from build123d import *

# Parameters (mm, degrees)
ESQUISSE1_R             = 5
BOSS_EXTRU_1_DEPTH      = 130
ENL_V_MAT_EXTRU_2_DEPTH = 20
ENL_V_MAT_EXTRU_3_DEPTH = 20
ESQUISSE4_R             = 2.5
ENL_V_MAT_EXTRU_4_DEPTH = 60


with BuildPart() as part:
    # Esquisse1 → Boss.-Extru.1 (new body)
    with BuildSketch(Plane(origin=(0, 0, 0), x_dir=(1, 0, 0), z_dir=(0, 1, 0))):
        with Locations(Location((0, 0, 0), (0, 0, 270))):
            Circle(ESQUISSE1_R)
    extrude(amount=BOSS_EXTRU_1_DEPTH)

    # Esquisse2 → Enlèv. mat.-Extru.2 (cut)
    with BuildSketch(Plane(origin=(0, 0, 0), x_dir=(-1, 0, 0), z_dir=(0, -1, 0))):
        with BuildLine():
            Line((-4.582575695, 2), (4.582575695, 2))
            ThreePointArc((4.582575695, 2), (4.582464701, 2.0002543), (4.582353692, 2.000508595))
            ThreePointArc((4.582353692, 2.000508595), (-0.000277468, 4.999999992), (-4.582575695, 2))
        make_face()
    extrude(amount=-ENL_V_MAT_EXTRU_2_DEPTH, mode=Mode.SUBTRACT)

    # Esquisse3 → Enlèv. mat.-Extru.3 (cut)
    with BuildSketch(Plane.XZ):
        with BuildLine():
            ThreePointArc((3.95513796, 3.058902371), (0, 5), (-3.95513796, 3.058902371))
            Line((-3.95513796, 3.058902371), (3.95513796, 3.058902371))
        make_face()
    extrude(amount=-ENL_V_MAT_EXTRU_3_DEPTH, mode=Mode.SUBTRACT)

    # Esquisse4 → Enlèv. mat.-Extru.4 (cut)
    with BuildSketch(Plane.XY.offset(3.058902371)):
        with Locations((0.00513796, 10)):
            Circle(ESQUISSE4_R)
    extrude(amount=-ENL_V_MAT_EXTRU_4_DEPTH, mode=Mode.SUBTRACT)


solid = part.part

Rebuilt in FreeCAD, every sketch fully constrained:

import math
import FreeCAD as App
import Part
import Sketcher

V = App.Vector

doc = App.newDocument("Part")
body = doc.addObject("PartDesign::Body", "Body")

# Sketch on XZ plane
sketch1 = body.newObject("Sketcher::SketchObject", "Sketch")
sketch1.AttachmentSupport = (doc.getObject("XZ_Plane"), [""])
sketch1.MapMode = "FlatFace"
sketch1.addGeometry(Part.Circle(V(0, 0, 0), V(0, 0, 1), 5), False)
sketch1.addConstraint([
    Sketcher.Constraint("Coincident", 0, 3, -1, 1),
    Sketcher.Constraint("Diameter", 0, 10.0),
])
pad1 = body.newObject("PartDesign::Pad", "Pad")
pad1.Profile = sketch1
pad1.Length = 130
pad1.Reversed = True

# Sketch on XZ plane
sketch2 = body.newObject("Sketcher::SketchObject", "Sketch001")
sketch2.AttachmentSupport = (doc.getObject("XZ_Plane"), [""])
sketch2.MapMode = "FlatFace"
sketch2.addGeometry([
    Part.LineSegment(V(4.582576, -2, 0), V(-4.582576, -2, 0)),
    Part.ArcOfCircle(Part.Circle(V(-0.10183, -0.044446, 0), V(0, 0, 1), 4.888893), math.radians(-156.421861), math.radians(-156.415358)),
    Part.ArcOfCircle(Part.Circle(V(0, 0, 0), V(0, 0, 1), 5), math.radians(-156.415462), math.radians(-23.578178)),
], False)
sketch2.addConstraint([
    Sketcher.Constraint("Coincident", 0, 2, 1, 1),
    Sketcher.Constraint("Coincident", 1, 2, 2, 1),
    Sketcher.Constraint("Coincident", 2, 2, 0, 1),
    Sketcher.Constraint("Horizontal", 0),
    Sketcher.Constraint("Coincident", 2, 3, -1, 1),
    Sketcher.Constraint("Radius", 2, 5.0),
    Sketcher.Constraint("DistanceY", 0, 2, -1, 1, 2.0),
    Sketcher.Constraint("Radius", 1, 4.888893),
    Sketcher.Constraint("DistanceX", 1, 3, -1, 1, 0.10183),
    Sketcher.Constraint("DistanceY", 1, 2, -1, 1, 2.000509),
])
pocket1 = body.newObject("PartDesign::Pocket", "Pocket")
pocket1.Profile = sketch2
pocket1.Length = 20

# Sketch on XZ plane
sketch3 = body.newObject("Sketcher::SketchObject", "Sketch002")
sketch3.AttachmentSupport = (doc.getObject("XZ_Plane"), [""])
sketch3.MapMode = "FlatFace"
sketch3.addGeometry([
    Part.ArcOfCircle(Part.Circle(V(0, 0, 0), V(0, 0, 1), 5), math.radians(37.718354), math.radians(142.281646)),
    Part.LineSegment(V(-3.955138, 3.058902, 0), V(3.955138, 3.058902, 0)),
], False)
sketch3.addConstraint([
    Sketcher.Constraint("Coincident", 0, 1, 1, 2),
    Sketcher.Constraint("Coincident", 1, 1, 0, 2),
    Sketcher.Constraint("Horizontal", 1),
    Sketcher.Constraint("Coincident", 0, 3, -1, 1),
    Sketcher.Constraint("Radius", 0, 5.0),
    Sketcher.Constraint("DistanceX", 1, 1, 1, 2, 7.910276),
])
pocket2 = body.newObject("PartDesign::Pocket", "Pocket001")
pocket2.Profile = sketch3
pocket2.Length = 20

# Sketch on XY plane
sketch4 = body.newObject("Sketcher::SketchObject", "Sketch003")
sketch4.AttachmentSupport = (doc.getObject("XY_Plane"), [""])
sketch4.MapMode = "FlatFace"
sketch4.AttachmentOffset = App.Placement(V(0, 0, 3.058902), App.Rotation())
sketch4.addGeometry(Part.Circle(V(0.005138, 10, 0), V(0, 0, 1), 2.5), False)
sketch4.addConstraint([
    Sketcher.Constraint("Diameter", 0, 5.0),
    Sketcher.Constraint("DistanceY", -1, 1, 0, 3, 10.0),
    Sketcher.Constraint("DistanceX", -1, 1, 0, 3, 0.005138),
])
pocket3 = body.newObject("PartDesign::Pocket", "Pocket002")
pocket3.Profile = sketch4
pocket3.Length = 60

doc.recompute()
